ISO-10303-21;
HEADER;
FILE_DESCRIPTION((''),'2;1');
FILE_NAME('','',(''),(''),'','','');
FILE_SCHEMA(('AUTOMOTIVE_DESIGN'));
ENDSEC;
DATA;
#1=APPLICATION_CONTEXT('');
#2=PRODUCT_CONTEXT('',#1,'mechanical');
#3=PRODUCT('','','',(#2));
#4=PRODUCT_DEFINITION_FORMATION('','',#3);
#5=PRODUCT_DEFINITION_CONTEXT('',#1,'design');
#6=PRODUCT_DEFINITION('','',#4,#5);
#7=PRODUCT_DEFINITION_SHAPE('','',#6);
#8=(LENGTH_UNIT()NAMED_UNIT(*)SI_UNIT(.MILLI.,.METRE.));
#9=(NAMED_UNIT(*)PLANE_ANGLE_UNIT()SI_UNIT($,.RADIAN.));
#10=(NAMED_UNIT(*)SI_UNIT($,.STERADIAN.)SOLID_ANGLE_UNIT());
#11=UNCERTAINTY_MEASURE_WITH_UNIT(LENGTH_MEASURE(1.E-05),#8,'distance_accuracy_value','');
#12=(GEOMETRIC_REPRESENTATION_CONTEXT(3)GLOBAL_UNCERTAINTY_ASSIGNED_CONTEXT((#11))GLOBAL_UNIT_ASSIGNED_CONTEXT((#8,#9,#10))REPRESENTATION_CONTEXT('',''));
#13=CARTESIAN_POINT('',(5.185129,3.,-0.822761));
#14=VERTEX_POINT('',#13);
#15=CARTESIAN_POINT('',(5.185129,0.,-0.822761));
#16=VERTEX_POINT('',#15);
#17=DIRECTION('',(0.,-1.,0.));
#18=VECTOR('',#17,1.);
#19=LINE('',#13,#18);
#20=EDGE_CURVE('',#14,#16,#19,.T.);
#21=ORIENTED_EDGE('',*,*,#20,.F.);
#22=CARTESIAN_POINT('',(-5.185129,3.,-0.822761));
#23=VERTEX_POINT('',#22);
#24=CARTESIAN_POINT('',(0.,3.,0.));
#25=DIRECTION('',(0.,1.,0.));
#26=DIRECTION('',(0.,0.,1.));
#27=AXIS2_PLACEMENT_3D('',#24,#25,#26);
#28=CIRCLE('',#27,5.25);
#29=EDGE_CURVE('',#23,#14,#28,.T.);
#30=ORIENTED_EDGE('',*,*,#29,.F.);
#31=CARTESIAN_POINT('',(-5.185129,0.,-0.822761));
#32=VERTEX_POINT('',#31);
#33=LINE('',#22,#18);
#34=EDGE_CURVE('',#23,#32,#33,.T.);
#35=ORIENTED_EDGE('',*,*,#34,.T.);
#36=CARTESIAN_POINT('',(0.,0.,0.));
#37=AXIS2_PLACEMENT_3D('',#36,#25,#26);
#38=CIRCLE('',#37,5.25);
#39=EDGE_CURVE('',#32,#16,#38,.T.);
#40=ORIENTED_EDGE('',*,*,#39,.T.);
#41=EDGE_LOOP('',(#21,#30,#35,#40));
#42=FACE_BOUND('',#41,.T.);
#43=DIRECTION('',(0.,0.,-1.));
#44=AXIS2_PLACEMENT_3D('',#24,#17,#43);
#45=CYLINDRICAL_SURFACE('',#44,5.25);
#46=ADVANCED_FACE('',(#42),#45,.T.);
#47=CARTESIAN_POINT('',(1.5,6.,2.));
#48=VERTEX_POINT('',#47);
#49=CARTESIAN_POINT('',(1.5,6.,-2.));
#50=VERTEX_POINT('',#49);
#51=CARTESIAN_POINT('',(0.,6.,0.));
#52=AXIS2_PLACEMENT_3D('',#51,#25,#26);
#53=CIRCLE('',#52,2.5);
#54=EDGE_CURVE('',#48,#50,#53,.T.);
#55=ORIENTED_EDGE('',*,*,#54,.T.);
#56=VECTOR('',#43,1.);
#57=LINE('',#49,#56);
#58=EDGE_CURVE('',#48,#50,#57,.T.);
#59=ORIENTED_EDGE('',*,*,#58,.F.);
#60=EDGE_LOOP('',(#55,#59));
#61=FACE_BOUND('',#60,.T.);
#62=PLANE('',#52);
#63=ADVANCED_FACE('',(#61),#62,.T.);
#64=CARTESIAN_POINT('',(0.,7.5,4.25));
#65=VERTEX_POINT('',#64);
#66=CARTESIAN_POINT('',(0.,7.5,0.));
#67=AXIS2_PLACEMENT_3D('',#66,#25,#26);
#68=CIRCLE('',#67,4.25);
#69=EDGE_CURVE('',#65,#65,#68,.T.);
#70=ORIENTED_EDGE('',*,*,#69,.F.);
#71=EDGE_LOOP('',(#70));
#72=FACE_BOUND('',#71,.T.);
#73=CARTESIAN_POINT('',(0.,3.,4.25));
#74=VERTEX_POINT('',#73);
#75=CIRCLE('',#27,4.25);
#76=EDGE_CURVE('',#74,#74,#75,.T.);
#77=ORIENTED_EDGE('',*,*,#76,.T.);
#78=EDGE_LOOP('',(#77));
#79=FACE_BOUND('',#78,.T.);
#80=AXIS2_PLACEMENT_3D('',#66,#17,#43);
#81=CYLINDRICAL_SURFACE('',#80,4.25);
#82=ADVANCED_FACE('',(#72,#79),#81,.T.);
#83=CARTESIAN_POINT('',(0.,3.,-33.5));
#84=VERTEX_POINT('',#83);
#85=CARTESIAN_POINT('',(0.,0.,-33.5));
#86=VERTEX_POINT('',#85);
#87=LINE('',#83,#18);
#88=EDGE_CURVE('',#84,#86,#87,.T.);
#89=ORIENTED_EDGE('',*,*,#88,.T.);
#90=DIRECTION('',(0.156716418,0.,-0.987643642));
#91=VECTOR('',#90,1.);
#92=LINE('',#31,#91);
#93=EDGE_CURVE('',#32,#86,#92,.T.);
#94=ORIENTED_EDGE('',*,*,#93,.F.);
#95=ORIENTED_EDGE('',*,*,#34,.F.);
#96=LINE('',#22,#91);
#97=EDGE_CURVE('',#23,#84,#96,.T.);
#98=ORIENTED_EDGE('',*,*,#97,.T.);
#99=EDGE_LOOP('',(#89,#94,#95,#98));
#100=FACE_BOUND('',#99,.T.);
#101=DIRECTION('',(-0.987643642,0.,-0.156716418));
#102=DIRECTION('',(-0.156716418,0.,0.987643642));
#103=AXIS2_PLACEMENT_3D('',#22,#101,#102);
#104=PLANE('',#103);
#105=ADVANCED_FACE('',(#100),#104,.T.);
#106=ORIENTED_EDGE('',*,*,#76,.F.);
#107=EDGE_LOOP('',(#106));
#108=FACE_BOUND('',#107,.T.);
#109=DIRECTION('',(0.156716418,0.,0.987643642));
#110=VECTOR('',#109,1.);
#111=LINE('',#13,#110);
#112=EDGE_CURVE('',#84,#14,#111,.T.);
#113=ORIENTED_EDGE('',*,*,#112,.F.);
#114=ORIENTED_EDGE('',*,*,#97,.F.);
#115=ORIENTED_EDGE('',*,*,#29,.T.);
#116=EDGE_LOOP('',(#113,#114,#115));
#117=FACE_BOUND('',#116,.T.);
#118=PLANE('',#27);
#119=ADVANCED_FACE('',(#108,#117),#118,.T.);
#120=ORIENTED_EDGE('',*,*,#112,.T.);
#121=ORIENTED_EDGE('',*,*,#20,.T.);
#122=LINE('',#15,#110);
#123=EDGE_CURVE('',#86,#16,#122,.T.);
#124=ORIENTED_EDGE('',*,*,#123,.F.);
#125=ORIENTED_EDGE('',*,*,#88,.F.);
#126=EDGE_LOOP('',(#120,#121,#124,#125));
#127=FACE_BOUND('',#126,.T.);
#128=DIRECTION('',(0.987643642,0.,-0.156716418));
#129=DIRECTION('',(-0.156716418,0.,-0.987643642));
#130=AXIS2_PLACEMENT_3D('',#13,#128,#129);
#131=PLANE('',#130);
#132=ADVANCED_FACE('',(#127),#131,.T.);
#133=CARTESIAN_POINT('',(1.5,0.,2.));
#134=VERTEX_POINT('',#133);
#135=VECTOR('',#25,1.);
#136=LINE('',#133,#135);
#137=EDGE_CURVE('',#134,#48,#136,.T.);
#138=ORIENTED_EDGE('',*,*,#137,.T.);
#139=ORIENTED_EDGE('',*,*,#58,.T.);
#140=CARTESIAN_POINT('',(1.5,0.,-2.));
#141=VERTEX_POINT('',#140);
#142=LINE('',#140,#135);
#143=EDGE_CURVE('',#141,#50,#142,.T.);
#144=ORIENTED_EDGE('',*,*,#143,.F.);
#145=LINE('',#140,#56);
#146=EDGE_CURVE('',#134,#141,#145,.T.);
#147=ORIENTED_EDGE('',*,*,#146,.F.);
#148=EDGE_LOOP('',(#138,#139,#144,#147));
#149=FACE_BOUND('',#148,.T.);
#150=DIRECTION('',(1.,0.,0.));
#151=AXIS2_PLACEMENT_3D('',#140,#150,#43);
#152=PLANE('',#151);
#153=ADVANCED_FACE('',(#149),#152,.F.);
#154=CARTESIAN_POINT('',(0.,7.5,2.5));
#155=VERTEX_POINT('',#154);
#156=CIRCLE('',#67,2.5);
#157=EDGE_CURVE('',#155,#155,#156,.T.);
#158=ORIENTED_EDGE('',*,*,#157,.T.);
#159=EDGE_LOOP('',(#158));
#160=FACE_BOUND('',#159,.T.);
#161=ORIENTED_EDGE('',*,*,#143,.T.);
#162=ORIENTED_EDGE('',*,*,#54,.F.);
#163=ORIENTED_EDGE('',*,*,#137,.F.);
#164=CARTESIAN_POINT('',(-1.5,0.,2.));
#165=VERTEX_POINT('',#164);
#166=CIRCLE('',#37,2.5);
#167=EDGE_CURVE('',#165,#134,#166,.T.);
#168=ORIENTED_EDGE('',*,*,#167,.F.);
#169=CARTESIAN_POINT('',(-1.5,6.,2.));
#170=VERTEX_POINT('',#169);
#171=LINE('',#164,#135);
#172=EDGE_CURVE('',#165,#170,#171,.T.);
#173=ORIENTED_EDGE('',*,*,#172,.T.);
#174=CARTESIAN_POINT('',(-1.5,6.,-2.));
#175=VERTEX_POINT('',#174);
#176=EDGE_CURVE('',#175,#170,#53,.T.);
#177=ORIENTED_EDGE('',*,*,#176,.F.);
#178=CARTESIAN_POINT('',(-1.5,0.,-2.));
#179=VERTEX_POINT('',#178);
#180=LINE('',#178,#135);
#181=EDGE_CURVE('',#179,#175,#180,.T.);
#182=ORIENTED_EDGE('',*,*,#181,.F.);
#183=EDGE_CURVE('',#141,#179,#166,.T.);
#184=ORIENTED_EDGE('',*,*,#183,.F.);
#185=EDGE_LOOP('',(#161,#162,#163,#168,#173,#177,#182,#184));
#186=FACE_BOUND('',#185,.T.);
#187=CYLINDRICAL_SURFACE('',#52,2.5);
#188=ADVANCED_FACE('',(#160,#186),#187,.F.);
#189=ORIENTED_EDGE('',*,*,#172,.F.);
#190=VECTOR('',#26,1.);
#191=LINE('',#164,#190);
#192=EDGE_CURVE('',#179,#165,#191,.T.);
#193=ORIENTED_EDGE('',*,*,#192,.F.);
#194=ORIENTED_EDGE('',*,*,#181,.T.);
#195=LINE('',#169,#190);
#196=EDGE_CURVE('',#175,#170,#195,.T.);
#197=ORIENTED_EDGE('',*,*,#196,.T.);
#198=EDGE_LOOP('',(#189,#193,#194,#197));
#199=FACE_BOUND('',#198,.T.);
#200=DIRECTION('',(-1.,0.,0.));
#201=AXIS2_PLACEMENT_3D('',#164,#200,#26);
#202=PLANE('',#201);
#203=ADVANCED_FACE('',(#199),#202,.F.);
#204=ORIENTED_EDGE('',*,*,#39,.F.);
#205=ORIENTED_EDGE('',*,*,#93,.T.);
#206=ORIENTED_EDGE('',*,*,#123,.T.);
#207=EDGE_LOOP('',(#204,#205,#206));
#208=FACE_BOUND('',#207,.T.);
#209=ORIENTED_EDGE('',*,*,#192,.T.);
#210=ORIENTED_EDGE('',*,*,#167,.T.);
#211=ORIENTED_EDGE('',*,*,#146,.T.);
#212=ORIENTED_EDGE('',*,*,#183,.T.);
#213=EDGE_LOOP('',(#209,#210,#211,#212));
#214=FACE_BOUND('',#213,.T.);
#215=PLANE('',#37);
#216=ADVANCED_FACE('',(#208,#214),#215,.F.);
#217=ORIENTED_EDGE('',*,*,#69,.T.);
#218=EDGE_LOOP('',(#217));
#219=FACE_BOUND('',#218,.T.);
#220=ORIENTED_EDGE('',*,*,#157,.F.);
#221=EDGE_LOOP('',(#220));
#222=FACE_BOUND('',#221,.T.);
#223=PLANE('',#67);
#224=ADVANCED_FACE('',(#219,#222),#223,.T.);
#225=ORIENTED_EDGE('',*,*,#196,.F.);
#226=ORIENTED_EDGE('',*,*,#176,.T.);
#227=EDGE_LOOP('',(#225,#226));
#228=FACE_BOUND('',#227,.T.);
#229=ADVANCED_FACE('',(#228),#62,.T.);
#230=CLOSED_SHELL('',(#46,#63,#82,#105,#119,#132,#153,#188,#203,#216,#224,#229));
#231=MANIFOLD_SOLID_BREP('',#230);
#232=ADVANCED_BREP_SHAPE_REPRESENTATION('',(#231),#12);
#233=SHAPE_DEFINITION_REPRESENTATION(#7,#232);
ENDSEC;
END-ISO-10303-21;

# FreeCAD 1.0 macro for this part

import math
import FreeCAD as App
import Part
import Sketcher

doc = App.newDocument("Part")
body = doc.addObject("PartDesign::Body", "Body")

# Sketch on XZ plane
sketch1 = body.newObject("Sketcher::SketchObject", "Sketch")
sketch1.AttachmentSupport = (doc.getObject("XZ_Plane"), [""])
sketch1.MapMode = "FlatFace"
sketch1.addGeometry(Part.Circle(App.Vector(0, 0, 0), App.Vector(0, 0, 1), 4.2), False)
sketch1.addConstraint([
    Sketcher.Constraint("Coincident", 0, 3, -1, 1),
    Sketcher.Constraint("Diameter", 0, 8.5),
])
pad1 = body.newObject("PartDesign::Pad", "Pad")
pad1.Profile = sketch1
pad1.Length = 7.5
pad1.Reversed = True

# Sketch on XZ plane
sketch2 = body.newObject("Sketcher::SketchObject", "Sketch001")
sketch2.AttachmentSupport = (doc.getObject("XZ_Plane"), [""])
sketch2.MapMode = "FlatFace"
sketch2.AttachmentOffset = App.Placement(App.Vector(0, 0, -7.5), App.Rotation())
sketch2.addGeometry(Part.Circle(App.Vector(0, 0, 0), App.Vector(0, 0, 1), 2.5), False)
sketch2.addConstraint([
    Sketcher.Constraint("Coincident", 0, 3, -1, 1),
    Sketcher.Constraint("Diameter", 0, 5.0),
])
pocket1 = body.newObject("PartDesign::Pocket", "Pocket")
pocket1.Profile = sketch2
pocket1.Length = 1.5
pocket1.Reversed = True

# Sketch on XZ plane
sketch3 = body.newObject("Sketcher::SketchObject", "Sketch002")
sketch3.AttachmentSupport = (doc.getObject("XZ_Plane"), [""])
sketch3.MapMode = "FlatFace"
sketch3.AttachmentOffset = App.Placement(App.Vector(0, 0, -6), App.Rotation())
sketch3.addGeometry([
    Part.LineSegment(App.Vector(-1.5, -2, 0), App.Vector(-1.5, 2, 0)),
    Part.ArcOfCircle(Part.Circle(App.Vector(0, 0, 0), App.Vector(0, 0, 1), 2.5), math.radians(53), math.radians(127)),
    Part.LineSegment(App.Vector(1.5, 2, 0), App.Vector(1.5, -2, 0)),
    Part.ArcOfCircle(Part.Circle(App.Vector(0, 0, 0), App.Vector(0, 0, 1), 2.5), math.radians(-127), math.radians(-53)),
], False)
sketch3.addConstraint([
    Sketcher.Constraint("Coincident", 0, 2, 1, 2),
    Sketcher.Constraint("Coincident", 1, 1, 2, 1),
    Sketcher.Constraint("Coincident", 2, 2, 3, 2),
    Sketcher.Constraint("Coincident", 3, 1, 0, 1),
    Sketcher.Constraint("Vertical", 0),
    Sketcher.Constraint("Vertical", 2),
    Sketcher.Constraint("Coincident", 1, 3, -1, 1),
    Sketcher.Constraint("Coincident", 3, 3, -1, 1),
    Sketcher.Constraint("Equal", 1, 3),
    Sketcher.Constraint("Horizontal", 0, 2, 1, 1),
    Sketcher.Constraint("Radius", 1, 2.5),
    Sketcher.Constraint("DistanceY", 0, 1, 0, 2, 4.0),
])
pocket2 = body.newObject("PartDesign::Pocket", "Pocket001")
pocket2.Profile = sketch3
pocket2.Length = 6
pocket2.Reversed = True

# Sketch on XZ plane
sketch4 = body.newObject("Sketcher::SketchObject", "Sketch003")
sketch4.AttachmentSupport = (doc.getObject("XZ_Plane"), [""])
sketch4.MapMode = "FlatFace"
sketch4.addGeometry([
    Part.LineSegment(App.Vector(0, -33.5, 0), App.Vector(-5.2, -0.8, 0)),  # 0
    Part.ArcOfCircle(Part.Circle(App.Vector(0, 0, 0), App.Vector(0, 0, 1), 5.2), math.radians(-9), math.radians(189)),  # 1
    Part.LineSegment(App.Vector(5.2, -0.8, 0), App.Vector(0, -33.5, 0)),  # 2
    Part.ArcOfCircle(Part.Circle(App.Vector(0, 0, 0), App.Vector(0, 0, 1), 2.5), math.radians(-127), math.radians(-53)),  # 3
    Part.LineSegment(App.Vector(1.5, -2, 0), App.Vector(1.5, 2, 0)),  # 4
    Part.ArcOfCircle(Part.Circle(App.Vector(0, 0, 0), App.Vector(0, 0, 1), 2.5), math.radians(53), math.radians(127)),  # 5
    Part.LineSegment(App.Vector(-1.5, 2, 0), App.Vector(-1.5, -2, 0)),  # 6
], False)
sketch4.addConstraint([
    Sketcher.Constraint("Tangent", 0, 2, 1, 2),
    Sketcher.Constraint("Tangent", 1, 1, 2, 1),
    Sketcher.Constraint("Coincident", 2, 2, 0, 1),
    Sketcher.Constraint("Coincident", 3, 2, 4, 1),
    Sketcher.Constraint("Coincident", 4, 2, 5, 1),
    Sketcher.Constraint("Coincident", 5, 2, 6, 1),
    Sketcher.Constraint("Coincident", 6, 2, 3, 1),
    Sketcher.Constraint("Vertical", 4),
    Sketcher.Constraint("Vertical", 6),
    Sketcher.Constraint("Coincident", 1, 3, -1, 1),
    Sketcher.Constraint("Coincident", 3, 3, -1, 1),
    Sketcher.Constraint("Coincident", 5, 3, -1, 1),
    Sketcher.Constraint("Equal", 3, 5),
    Sketcher.Constraint("PointOnObject", 2, 2, -2),
    Sketcher.Constraint("Horizontal", 4, 2, 5, 2),
    Sketcher.Constraint("Radius", 3, 2.5),
    Sketcher.Constraint("DistanceY", 4, 1, 4, 2, 4.0),
    Sketcher.Constraint("Radius", 1, 5.25),
    Sketcher.Constraint("DistanceY", 2, 2, -1, 1, 33.5),
])
pad2 = body.newObject("PartDesign::Pad", "Pad001")
pad2.Profile = sketch4
pad2.Length = 3
pad2.Reversed = True

doc.recompute()
